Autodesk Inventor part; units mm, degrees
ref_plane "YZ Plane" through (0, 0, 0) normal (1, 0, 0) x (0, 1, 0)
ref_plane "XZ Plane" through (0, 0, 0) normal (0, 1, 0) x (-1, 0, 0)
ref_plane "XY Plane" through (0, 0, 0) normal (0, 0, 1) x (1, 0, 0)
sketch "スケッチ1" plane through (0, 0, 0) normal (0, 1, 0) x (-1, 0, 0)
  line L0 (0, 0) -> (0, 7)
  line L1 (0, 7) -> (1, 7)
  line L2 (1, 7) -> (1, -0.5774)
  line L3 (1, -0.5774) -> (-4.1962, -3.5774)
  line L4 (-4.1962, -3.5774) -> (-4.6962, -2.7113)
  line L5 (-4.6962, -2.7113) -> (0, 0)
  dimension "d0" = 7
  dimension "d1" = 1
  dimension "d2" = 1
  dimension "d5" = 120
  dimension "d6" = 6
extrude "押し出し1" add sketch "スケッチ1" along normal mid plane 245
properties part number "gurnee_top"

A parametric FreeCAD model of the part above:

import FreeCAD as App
import Part
import Sketcher
Q = App.Units.Quantity

doc = App.newDocument("Part")
params = doc.addObject("Spreadsheet::Sheet", "Params")
for row, (alias, value) in enumerate([
    ("sketch1_width", "1 mm"),
    ("sketch1_height", "7 mm"),
    ("sketch1_length", "1 mm"),
    ("sketch1_length2", "6 mm"),
    ("pad1_length", "245 mm"),
], start=1):
    params.set(f"A{row}", alias)
    params.set(f"B{row}", "=" + value)
    params.setAlias(f"B{row}", alias)

body = doc.addObject("PartDesign::Body", "Body")

# Sketch on XZ plane
sketch1 = body.newObject("Sketcher::SketchObject", "Sketch")
sketch1.AttachmentSupport = (doc.getObject("XZ_Plane"), [""])
sketch1.MapMode = "FlatFace"
sketch1.addGeometry([
    Part.LineSegment(App.Vector(0, 7, 0), App.Vector(0, 0, 0)),  # 0
    Part.LineSegment(App.Vector(0, 0, 0), App.Vector(4.6962, -2.7113, 0)),  # 1
    Part.LineSegment(App.Vector(4.6962, -2.7113, 0), App.Vector(4.1962, -3.5774, 0)),  # 2
    Part.LineSegment(App.Vector(4.1962, -3.5774, 0), App.Vector(-1, -0.5774, 0)),  # 3
    Part.LineSegment(App.Vector(-1, -0.5774, 0), App.Vector(-1, 7, 0)),  # 4
    Part.LineSegment(App.Vector(-1, 7, 0), App.Vector(0, 7, 0)),  # 5
], False)
sketch1.addConstraint([
    Sketcher.Constraint("Coincident", 0, 2, 1, 1),
    Sketcher.Constraint("Coincident", 1, 2, 2, 1),
    Sketcher.Constraint("Coincident", 2, 2, 3, 1),
    Sketcher.Constraint("Coincident", 3, 2, 4, 1),
    Sketcher.Constraint("Coincident", 4, 2, 5, 1),
    Sketcher.Constraint("Coincident", 5, 2, 0, 1),
    Sketcher.Constraint("Vertical", 0),
    Sketcher.Constraint("Vertical", 4),
    Sketcher.Constraint("Horizontal", 5),
    Sketcher.Constraint("Coincident", 0, 2, -1, 1),
    Sketcher.Constraint("Perpendicular", 1, 2),
    Sketcher.Constraint("Perpendicular", 2, 3),
    Sketcher.Constraint("DistanceX", 5, 1, 5, 2, 1.0),
    Sketcher.Constraint("DistanceY", 0, 2, 0, 1, 7.0),
    Sketcher.Constraint("Distance", 2, 1.0),
    Sketcher.Constraint("Distance", 3, 6.0),
    Sketcher.Constraint("Angle", 1, Q("-29.9995 deg")),
])
sketch1.setExpression("Constraints[12]", "Params.sketch1_width")
sketch1.setExpression("Constraints[13]", "Params.sketch1_height")
sketch1.setExpression("Constraints[14]", "Params.sketch1_length")
sketch1.setExpression("Constraints[15]", "Params.sketch1_length2")
pad1 = body.newObject("PartDesign::Pad", "Pad")
pad1.Profile = sketch1
pad1.setExpression("Length", "Params.pad1_length")
pad1.Midplane = True

doc.recompute()
